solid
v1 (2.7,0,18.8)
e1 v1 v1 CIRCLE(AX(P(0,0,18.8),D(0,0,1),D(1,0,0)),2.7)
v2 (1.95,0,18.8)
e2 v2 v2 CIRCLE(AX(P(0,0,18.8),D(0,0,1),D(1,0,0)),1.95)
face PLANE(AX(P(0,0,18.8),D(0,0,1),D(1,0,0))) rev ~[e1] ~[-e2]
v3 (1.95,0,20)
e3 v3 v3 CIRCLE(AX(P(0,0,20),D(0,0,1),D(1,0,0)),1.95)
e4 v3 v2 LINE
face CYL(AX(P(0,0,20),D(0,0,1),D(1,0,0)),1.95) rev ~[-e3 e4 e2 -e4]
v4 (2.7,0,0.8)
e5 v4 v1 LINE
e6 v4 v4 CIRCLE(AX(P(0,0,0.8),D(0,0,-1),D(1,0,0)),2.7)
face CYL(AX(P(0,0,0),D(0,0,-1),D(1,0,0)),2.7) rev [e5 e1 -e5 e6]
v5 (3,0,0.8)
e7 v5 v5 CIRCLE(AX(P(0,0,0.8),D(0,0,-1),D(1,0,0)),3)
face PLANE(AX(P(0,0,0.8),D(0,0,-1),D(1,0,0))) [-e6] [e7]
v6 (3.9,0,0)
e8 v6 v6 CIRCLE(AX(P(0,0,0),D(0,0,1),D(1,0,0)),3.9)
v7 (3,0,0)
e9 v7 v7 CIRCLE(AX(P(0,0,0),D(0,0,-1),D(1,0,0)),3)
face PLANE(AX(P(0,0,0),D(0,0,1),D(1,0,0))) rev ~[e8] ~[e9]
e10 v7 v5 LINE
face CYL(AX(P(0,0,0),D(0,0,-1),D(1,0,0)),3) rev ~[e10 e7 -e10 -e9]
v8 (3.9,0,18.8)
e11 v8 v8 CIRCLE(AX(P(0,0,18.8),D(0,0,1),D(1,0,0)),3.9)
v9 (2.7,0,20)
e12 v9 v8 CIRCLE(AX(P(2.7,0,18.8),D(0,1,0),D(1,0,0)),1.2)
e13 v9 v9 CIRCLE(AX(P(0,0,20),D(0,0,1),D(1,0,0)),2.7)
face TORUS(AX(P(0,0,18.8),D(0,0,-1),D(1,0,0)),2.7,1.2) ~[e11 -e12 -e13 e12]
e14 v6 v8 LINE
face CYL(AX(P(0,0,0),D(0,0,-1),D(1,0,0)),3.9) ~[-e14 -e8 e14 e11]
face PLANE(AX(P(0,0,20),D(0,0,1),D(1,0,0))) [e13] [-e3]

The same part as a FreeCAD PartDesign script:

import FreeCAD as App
import Part
import Sketcher
from FreeCAD import Vector
Q = App.Units.Quantity


def edges_at(feature, points):
    """Names of the edges that pass closest to the given points."""
    edges = feature.Shape.Edges
    near = lambda p: min(range(len(edges)), key=lambda i: edges[i].distToShape(Part.Vertex(*p))[0])
    return sorted({f"Edge{near(p) + 1}" for p in points})

doc = App.newDocument("Part")
body = doc.addObject("PartDesign::Body", "Body")

# Sketch on XY plane
sketch1 = doc.addObject("Sketcher::SketchObject", "Sketch")
body.addObject(sketch1)
sketch1.AttachmentSupport = (doc.XY_Plane, [""])
sketch1.MapMode = "FlatFace"
sketch1.addGeometry([
    Part.Circle(Vector(0, 0, 0), Vector(0, 0, 1), 3.9),
    Part.Circle(Vector(0, 0, 0), Vector(0, 0, 1), 2.7),
], False)
sketch1.addConstraint([
    Sketcher.Constraint("Coincident", 0, 3, -1, 1),
    Sketcher.Constraint("Coincident", 1, 3, -1, 1),
    Sketcher.Constraint("Diameter", 0, Q("7.8 mm")),
    Sketcher.Constraint("Diameter", 1, Q("5.4 mm")),
])
pad1 = doc.addObject("PartDesign::Pad", "Pad")
body.addObject(pad1)
pad1.Profile = sketch1
pad1.Length = 20

# Sketch on XY plane
sketch2 = doc.addObject("Sketcher::SketchObject", "Sketch001")
body.addObject(sketch2)
sketch2.AttachmentSupport = (doc.XY_Plane, [""])
sketch2.MapMode = "FlatFace"
sketch2.AttachmentOffset = App.Placement(Vector(0, 0, 20), App.Rotation())
sketch2.addGeometry([
    Part.Circle(Vector(0, 0, 0), Vector(0, 0, 1), 2.7),
    Part.Circle(Vector(0, 0, 0), Vector(0, 0, 1), 1.9),
], False)
sketch2.addConstraint([
    Sketcher.Constraint("Coincident", 0, 3, -1, 1),
    Sketcher.Constraint("Coincident", 1, 3, -1, 1),
    Sketcher.Constraint("Diameter", 0, Q("5.4 mm")),
    Sketcher.Constraint("Diameter", 1, Q("3.9 mm")),
])
pad2 = doc.addObject("PartDesign::Pad", "Pad001")
body.addObject(pad2)
pad2.Profile = sketch2
pad2.Length = 1.2
pad2.Reversed = True
doc.recompute()

fillet = doc.addObject("PartDesign::Fillet", "Fillet")
body.addObject(fillet)
fillet.Base = (pad2, edges_at(pad2, [(-3.9, 0, 20)]))
fillet.Radius = 1.2

# Sketch on XY plane
sketch3 = doc.addObject("Sketcher::SketchObject", "Sketch002")
body.addObject(sketch3)
sketch3.AttachmentSupport = (doc.XY_Plane, [""])
sketch3.MapMode = "FlatFace"
sketch3.addGeometry(Part.Circle(Vector(0, 0, 0), Vector(0, 0, 1), 3), False)
sketch3.addConstraint([
    Sketcher.Constraint("Coincident", 0, 3, -1, 1),
    Sketcher.Constraint("Diameter", 0, Q("6 mm")),
])
pocket1 = doc.addObject("PartDesign::Pocket", "Pocket")
body.addObject(pocket1)
pocket1.Profile = sketch3
pocket1.Length = 0.8
pocket1.Reversed = True

doc.recompute()
